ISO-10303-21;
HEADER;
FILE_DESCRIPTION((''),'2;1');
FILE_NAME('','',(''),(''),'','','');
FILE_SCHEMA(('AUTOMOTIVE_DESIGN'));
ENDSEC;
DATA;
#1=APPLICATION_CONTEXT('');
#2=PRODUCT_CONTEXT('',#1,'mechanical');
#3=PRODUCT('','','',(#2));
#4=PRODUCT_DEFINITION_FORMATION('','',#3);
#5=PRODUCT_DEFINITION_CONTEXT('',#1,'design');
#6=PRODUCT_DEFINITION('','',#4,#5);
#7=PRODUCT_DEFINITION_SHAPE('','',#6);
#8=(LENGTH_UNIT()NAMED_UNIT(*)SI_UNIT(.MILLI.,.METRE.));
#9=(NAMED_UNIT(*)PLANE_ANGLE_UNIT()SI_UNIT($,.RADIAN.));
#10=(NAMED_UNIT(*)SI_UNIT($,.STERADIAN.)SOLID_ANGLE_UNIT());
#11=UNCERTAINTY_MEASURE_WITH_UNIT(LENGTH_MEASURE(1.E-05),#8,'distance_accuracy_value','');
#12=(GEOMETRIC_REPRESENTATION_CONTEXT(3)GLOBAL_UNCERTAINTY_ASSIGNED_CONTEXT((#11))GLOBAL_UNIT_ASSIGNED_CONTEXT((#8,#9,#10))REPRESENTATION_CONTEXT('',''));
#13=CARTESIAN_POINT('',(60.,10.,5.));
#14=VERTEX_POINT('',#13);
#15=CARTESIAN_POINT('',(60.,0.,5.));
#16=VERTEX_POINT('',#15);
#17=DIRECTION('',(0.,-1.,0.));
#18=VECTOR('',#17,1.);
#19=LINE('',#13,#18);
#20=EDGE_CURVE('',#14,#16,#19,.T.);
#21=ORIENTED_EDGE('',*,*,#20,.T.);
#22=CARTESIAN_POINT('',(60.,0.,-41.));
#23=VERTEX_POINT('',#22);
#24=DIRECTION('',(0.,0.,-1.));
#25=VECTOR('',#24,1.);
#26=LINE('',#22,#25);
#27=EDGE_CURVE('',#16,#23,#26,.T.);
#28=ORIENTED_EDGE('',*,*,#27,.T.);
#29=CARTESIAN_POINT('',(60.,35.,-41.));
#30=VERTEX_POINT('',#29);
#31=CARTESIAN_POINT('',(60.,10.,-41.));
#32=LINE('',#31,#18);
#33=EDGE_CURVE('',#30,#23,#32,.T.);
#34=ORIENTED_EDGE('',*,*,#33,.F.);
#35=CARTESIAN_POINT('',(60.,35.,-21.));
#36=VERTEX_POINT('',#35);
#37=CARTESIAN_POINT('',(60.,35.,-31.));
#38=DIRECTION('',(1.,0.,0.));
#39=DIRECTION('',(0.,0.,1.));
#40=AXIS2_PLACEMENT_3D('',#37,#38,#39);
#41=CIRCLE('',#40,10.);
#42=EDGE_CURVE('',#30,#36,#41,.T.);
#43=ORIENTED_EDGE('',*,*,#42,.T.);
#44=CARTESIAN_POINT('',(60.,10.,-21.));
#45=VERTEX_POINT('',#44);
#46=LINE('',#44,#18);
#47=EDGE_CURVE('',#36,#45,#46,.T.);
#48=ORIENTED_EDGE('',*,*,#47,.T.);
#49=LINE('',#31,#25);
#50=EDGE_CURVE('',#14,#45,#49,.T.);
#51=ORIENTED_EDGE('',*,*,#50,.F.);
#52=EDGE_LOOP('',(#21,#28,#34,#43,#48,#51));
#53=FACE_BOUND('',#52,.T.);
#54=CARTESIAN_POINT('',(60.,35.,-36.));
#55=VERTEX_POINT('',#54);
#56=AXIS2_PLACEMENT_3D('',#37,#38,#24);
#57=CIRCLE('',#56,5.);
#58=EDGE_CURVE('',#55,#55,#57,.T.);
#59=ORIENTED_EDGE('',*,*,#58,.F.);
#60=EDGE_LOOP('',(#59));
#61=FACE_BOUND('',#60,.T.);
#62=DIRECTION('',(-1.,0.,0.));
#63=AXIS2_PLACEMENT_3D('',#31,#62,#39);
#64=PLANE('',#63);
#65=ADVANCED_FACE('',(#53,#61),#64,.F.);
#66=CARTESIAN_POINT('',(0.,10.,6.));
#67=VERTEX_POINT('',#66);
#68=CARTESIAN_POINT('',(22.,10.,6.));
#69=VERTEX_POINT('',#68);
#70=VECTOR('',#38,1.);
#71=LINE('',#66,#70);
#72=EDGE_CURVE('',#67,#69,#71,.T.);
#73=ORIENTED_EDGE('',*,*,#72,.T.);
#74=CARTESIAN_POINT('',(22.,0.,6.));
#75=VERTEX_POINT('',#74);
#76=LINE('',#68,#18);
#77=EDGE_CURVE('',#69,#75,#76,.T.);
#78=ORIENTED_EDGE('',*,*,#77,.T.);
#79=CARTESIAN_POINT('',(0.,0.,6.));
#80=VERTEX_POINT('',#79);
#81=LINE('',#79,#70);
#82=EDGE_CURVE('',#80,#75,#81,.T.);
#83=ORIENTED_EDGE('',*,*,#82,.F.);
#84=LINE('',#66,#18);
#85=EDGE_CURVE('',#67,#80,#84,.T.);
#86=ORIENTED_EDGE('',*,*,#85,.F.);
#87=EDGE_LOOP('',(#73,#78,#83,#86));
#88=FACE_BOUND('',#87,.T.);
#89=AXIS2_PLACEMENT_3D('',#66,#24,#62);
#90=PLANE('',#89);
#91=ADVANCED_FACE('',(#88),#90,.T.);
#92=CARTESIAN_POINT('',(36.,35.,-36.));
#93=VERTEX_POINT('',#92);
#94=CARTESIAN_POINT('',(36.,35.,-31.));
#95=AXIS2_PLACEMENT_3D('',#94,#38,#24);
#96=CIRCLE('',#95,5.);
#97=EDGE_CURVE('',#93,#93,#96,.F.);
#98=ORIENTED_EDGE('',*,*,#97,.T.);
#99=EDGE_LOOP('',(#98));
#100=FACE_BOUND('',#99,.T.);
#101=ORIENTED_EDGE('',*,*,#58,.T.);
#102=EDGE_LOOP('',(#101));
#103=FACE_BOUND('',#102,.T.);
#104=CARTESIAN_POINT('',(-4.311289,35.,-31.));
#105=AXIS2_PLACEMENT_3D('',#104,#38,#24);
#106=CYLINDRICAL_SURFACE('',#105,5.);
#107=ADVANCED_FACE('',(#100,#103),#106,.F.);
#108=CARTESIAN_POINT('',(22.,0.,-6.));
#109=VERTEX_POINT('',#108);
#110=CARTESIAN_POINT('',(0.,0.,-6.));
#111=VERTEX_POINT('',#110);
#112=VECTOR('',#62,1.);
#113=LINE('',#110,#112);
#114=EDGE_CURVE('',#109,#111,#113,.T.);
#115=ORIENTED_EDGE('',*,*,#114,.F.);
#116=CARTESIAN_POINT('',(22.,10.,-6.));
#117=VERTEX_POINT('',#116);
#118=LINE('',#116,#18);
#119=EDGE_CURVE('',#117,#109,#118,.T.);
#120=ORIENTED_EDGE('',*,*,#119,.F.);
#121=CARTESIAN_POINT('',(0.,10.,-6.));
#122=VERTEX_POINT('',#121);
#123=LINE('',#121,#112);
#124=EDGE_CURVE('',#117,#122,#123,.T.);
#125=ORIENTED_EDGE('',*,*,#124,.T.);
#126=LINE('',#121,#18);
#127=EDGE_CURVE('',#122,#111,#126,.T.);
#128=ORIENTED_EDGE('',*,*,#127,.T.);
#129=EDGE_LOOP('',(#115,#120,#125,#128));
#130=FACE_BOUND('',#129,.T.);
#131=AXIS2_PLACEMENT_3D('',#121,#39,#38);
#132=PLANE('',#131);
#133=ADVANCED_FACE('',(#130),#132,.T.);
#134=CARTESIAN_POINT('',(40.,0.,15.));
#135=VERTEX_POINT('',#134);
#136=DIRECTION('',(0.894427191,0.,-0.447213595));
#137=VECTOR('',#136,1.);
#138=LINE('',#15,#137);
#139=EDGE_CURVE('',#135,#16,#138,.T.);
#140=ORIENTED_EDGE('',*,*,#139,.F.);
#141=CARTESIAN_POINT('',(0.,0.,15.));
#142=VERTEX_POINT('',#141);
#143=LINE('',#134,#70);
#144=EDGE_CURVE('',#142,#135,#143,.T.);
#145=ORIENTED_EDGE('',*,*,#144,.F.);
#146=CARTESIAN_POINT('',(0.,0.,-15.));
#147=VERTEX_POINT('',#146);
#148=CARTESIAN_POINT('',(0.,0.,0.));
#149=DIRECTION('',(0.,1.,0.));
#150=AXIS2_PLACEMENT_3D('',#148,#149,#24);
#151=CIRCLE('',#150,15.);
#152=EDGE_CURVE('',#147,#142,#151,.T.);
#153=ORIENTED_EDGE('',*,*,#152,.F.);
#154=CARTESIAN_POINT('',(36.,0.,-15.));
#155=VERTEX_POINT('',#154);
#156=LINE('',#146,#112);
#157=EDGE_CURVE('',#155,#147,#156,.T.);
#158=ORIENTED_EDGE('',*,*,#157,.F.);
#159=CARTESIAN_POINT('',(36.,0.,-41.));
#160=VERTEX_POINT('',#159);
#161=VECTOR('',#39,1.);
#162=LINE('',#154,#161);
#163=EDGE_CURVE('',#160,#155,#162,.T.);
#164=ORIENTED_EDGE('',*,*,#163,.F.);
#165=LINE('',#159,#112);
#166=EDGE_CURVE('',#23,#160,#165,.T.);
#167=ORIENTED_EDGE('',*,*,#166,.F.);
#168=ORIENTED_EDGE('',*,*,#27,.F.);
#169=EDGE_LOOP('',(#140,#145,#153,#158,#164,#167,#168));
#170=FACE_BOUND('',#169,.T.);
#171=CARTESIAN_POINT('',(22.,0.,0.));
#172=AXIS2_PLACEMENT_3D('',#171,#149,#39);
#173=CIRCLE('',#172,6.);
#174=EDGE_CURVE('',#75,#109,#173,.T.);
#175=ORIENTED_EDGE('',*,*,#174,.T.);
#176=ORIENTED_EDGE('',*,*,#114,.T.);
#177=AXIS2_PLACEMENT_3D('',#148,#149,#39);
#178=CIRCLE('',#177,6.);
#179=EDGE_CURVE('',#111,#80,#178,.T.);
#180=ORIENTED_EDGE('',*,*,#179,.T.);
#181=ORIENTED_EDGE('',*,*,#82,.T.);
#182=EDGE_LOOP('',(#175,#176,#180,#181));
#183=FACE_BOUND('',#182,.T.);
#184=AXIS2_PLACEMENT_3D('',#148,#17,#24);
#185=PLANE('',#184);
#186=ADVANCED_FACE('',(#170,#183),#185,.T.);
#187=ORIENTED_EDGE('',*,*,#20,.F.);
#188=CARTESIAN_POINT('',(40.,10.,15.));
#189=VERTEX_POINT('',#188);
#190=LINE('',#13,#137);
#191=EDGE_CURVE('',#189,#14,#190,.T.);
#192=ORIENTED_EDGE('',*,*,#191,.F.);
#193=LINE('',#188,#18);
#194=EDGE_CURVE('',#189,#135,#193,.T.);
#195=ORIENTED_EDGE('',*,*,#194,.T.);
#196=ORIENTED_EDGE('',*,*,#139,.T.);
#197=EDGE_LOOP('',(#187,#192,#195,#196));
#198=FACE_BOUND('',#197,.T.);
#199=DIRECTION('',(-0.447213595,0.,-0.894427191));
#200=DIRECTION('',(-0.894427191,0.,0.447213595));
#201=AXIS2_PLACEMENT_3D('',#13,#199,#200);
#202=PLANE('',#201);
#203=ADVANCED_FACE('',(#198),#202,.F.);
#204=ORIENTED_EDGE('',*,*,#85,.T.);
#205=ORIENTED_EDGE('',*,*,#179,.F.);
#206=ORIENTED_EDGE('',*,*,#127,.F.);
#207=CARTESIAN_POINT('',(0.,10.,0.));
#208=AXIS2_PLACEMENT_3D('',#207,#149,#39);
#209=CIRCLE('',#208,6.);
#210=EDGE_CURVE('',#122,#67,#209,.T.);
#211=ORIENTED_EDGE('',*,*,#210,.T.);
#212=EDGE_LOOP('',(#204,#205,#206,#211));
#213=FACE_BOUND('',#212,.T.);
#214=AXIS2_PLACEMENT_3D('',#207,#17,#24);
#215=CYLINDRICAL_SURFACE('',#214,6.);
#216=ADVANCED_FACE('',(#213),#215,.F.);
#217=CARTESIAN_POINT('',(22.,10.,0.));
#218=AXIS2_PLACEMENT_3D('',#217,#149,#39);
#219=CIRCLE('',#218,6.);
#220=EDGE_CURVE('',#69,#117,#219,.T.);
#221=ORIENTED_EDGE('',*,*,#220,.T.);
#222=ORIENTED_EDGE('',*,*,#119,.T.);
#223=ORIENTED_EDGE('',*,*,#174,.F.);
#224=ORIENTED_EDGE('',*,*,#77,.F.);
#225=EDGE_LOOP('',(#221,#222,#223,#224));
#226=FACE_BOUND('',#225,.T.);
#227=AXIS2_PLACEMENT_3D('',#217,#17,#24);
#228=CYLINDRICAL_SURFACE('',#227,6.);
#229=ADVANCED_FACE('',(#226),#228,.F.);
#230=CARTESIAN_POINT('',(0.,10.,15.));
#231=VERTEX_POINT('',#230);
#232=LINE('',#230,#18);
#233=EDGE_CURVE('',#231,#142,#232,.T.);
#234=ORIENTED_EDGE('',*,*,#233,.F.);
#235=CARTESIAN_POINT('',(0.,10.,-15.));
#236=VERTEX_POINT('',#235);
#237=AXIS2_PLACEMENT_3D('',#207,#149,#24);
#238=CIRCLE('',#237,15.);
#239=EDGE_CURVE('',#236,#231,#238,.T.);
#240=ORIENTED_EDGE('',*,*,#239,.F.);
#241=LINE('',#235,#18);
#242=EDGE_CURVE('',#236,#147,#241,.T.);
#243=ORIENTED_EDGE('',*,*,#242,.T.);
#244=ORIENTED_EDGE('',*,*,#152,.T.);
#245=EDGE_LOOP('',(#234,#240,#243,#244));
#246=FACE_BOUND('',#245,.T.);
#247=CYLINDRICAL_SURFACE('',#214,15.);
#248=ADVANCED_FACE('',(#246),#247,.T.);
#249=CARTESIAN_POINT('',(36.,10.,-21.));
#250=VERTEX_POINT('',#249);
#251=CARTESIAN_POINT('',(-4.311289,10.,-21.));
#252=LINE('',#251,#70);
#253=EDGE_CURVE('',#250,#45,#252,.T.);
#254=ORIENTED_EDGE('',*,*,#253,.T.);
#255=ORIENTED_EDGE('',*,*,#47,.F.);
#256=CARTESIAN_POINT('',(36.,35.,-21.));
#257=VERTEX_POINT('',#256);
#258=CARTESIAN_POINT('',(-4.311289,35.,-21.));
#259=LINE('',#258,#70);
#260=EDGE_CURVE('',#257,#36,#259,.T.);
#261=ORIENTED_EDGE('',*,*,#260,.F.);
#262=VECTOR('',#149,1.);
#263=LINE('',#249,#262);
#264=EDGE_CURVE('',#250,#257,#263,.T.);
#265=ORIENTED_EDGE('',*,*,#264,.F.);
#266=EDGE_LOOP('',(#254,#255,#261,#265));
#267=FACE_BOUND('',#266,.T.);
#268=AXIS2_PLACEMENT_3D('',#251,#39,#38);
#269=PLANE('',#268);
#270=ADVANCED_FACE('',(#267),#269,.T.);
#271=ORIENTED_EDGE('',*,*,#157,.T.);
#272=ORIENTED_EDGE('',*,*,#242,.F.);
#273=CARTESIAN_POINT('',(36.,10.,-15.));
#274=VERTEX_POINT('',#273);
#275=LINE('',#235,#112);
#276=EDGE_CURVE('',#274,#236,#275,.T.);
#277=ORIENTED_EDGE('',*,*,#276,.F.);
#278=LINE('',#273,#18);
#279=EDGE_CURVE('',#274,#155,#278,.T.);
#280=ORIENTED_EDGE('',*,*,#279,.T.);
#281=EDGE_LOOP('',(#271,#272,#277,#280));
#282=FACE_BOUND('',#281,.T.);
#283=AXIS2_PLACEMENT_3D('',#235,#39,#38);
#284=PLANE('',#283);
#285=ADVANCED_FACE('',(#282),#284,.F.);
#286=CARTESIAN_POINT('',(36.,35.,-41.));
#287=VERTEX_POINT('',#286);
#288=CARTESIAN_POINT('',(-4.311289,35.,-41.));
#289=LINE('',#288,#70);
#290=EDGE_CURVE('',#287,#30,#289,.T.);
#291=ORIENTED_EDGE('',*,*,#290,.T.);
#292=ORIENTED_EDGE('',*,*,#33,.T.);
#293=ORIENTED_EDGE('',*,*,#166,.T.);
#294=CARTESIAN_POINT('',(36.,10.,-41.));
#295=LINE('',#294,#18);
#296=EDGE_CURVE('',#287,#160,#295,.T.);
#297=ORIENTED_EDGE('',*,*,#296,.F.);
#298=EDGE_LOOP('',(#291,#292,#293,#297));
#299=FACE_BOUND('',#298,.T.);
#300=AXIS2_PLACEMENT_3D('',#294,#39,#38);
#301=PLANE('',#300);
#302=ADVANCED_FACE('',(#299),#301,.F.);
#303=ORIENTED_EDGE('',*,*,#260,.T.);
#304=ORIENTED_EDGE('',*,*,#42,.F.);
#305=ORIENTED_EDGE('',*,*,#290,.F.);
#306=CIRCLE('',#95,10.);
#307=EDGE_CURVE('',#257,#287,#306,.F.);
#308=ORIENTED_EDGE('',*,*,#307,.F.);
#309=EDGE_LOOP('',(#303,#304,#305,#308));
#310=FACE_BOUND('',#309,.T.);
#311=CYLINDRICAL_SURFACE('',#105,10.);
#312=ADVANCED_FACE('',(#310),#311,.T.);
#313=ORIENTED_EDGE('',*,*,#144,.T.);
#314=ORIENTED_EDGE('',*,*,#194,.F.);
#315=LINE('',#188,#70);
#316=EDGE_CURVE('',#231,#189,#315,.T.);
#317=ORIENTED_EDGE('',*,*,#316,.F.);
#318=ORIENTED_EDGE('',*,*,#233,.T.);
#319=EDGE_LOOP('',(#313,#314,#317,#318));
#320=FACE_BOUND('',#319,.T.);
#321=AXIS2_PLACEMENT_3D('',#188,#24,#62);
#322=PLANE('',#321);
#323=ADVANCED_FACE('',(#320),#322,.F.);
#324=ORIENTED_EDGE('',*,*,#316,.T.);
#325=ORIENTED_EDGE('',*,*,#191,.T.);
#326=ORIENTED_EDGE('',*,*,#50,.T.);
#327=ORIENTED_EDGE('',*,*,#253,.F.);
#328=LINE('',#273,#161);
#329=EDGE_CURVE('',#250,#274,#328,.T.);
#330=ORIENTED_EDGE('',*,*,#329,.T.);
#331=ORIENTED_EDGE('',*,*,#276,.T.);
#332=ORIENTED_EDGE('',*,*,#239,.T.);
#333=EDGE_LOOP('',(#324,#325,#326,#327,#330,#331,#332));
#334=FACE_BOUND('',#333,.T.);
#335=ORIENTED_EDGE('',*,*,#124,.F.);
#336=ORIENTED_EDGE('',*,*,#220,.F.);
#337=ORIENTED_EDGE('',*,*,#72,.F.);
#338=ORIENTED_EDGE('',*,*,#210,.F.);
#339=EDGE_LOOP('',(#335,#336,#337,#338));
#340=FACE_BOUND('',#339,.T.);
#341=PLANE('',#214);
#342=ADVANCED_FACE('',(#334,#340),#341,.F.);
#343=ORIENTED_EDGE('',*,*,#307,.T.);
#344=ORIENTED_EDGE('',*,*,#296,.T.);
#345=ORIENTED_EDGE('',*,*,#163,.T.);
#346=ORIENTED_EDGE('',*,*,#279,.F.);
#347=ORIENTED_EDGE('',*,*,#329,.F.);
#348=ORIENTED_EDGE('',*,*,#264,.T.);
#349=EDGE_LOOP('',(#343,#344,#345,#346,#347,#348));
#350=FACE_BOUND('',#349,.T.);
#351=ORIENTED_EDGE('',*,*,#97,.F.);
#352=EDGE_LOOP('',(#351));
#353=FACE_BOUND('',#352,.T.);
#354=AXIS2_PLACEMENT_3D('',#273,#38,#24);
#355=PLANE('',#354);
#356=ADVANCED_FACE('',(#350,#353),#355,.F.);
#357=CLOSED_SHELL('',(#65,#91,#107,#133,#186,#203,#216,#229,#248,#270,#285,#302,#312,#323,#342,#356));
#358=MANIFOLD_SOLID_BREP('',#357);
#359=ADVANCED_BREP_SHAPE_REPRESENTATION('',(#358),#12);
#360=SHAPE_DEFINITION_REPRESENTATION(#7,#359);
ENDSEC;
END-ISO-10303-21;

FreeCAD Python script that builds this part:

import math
import FreeCAD as App
import Part
import Sketcher

V = App.Vector

doc = App.newDocument("Part")
body = doc.addObject("PartDesign::Body", "Body")

# Sketch on XZ plane
sketch1 = body.newObject("Sketcher::SketchObject", "Sketch")
sketch1.AttachmentSupport = (doc.getObject("XZ_Plane"), [""])
sketch1.MapMode = "FlatFace"
sketch1.addGeometry([
    Part.LineSegment(V(36, -15, 0), V(0, -15, 0)),  # 0
    Part.ArcOfCircle(Part.Circle(V(0, 0, 0), V(0, 0, 1), 15), math.radians(90), math.radians(270)),  # 1
    Part.LineSegment(V(0, 15, 0), V(40, 15, 0)),  # 2
    Part.LineSegment(V(40, 15, 0), V(60, 5, 0)),  # 3
    Part.LineSegment(V(60, 5, 0), V(60, -41, 0)),  # 4
    Part.LineSegment(V(60, -41, 0), V(36, -41, 0)),  # 5
    Part.LineSegment(V(36, -41, 0), V(36, -15, 0)),  # 6
    Part.LineSegment(V(0, -6, 0), V(22, -6, 0)),  # 7
    Part.ArcOfCircle(Part.Circle(V(22, 0, 0), V(0, 0, 1), 6), math.radians(-90), math.radians(90)),  # 8
    Part.LineSegment(V(22, 6, 0), V(0, 6, 0)),  # 9
    Part.ArcOfCircle(Part.Circle(V(0, 0, 0), V(0, 0, 1), 6), math.radians(90), math.radians(270)),  # 10
], False)
sketch1.addConstraint([
    Sketcher.Constraint("Tangent", 0, 2, 1, 2),
    Sketcher.Constraint("Tangent", 1, 1, 2, 1),
    Sketcher.Constraint("Coincident", 2, 2, 3, 1),
    Sketcher.Constraint("Coincident", 3, 2, 4, 1),
    Sketcher.Constraint("Coincident", 4, 2, 5, 1),
    Sketcher.Constraint("Coincident", 5, 2, 6, 1),
    Sketcher.Constraint("Coincident", 6, 2, 0, 1),
    Sketcher.Constraint("Tangent", 7, 2, 8, 1),
    Sketcher.Constraint("Tangent", 8, 2, 9, 1),
    Sketcher.Constraint("Tangent", 9, 2, 10, 1),
    Sketcher.Constraint("Tangent", 10, 2, 7, 1),
    Sketcher.Constraint("Horizontal", 0),
    Sketcher.Constraint("Horizontal", 2),
    Sketcher.Constraint("Vertical", 4),
    Sketcher.Constraint("Horizontal", 5),
    Sketcher.Constraint("Vertical", 6),
    Sketcher.Constraint("Horizontal", 7),
    Sketcher.Constraint("Horizontal", 9),
    Sketcher.Constraint("Coincident", 1, 3, -1, 1),
    Sketcher.Constraint("Coincident", 10, 3, -1, 1),
    Sketcher.Constraint("Radius", 1, 15.0),
    Sketcher.Constraint("Radius", 8, 6.0),
    Sketcher.Constraint("DistanceX", 0, 2, 0, 1, 36.0),
    Sketcher.Constraint("DistanceX", 2, 1, 2, 2, 40.0),
    Sketcher.Constraint("DistanceX", 5, 2, 5, 1, 24.0),
    Sketcher.Constraint("DistanceX", 7, 1, 7, 2, 22.0),
    Sketcher.Constraint("DistanceY", 4, 2, 4, 1, 46.0),
    Sketcher.Constraint("DistanceY", 6, 1, 6, 2, 26.0),
])
pad1 = body.newObject("PartDesign::Pad", "Pad")
pad1.Profile = sketch1
pad1.Length = 10
pad1.Reversed = True

# Sketch on YZ plane
sketch2 = body.newObject("Sketcher::SketchObject", "Sketch001")
sketch2.AttachmentSupport = (doc.getObject("YZ_Plane"), [""])
sketch2.MapMode = "FlatFace"
sketch2.AttachmentOffset = App.Placement(V(0, 0, 60), App.Rotation())
sketch2.addGeometry([
    Part.LineSegment(V(10, -21, 0), V(10, -41, 0)),  # 0
    Part.LineSegment(V(10, -41, 0), V(35, -41, 0)),  # 1
    Part.ArcOfCircle(Part.Circle(V(35, -31, 0), V(0, 0, 1), 10), math.radians(-90), math.radians(90)),  # 2
    Part.LineSegment(V(35, -21, 0), V(10, -21, 0)),  # 3
    Part.Circle(V(35, -31, 0), V(0, 0, 1), 5),  # 4
], False)
sketch2.addConstraint([
    Sketcher.Constraint("Coincident", 0, 2, 1, 1),
    Sketcher.Constraint("Tangent", 1, 2, 2, 1),
    Sketcher.Constraint("Tangent", 2, 2, 3, 1),
    Sketcher.Constraint("Coincident", 3, 2, 0, 1),
    Sketcher.Constraint("Vertical", 0),
    Sketcher.Constraint("Horizontal", 1),
    Sketcher.Constraint("Horizontal", 3),
    Sketcher.Constraint("Coincident", 4, 3, 2, 3),
    Sketcher.Constraint("Diameter", 4, 10.0),
    Sketcher.Constraint("Radius", 2, 10.0),
    Sketcher.Constraint("DistanceX", 1, 1, 1, 2, 25.0),
    Sketcher.Constraint("DistanceX", -1, 1, 2, 3, 35.0),
    Sketcher.Constraint("DistanceY", 2, 3, -1, 1, 31.0),
])
pad2 = body.newObject("PartDesign::Pad", "Pad001")
pad2.Profile = sketch2
pad2.Length = 24
pad2.Reversed = True

doc.recompute()
